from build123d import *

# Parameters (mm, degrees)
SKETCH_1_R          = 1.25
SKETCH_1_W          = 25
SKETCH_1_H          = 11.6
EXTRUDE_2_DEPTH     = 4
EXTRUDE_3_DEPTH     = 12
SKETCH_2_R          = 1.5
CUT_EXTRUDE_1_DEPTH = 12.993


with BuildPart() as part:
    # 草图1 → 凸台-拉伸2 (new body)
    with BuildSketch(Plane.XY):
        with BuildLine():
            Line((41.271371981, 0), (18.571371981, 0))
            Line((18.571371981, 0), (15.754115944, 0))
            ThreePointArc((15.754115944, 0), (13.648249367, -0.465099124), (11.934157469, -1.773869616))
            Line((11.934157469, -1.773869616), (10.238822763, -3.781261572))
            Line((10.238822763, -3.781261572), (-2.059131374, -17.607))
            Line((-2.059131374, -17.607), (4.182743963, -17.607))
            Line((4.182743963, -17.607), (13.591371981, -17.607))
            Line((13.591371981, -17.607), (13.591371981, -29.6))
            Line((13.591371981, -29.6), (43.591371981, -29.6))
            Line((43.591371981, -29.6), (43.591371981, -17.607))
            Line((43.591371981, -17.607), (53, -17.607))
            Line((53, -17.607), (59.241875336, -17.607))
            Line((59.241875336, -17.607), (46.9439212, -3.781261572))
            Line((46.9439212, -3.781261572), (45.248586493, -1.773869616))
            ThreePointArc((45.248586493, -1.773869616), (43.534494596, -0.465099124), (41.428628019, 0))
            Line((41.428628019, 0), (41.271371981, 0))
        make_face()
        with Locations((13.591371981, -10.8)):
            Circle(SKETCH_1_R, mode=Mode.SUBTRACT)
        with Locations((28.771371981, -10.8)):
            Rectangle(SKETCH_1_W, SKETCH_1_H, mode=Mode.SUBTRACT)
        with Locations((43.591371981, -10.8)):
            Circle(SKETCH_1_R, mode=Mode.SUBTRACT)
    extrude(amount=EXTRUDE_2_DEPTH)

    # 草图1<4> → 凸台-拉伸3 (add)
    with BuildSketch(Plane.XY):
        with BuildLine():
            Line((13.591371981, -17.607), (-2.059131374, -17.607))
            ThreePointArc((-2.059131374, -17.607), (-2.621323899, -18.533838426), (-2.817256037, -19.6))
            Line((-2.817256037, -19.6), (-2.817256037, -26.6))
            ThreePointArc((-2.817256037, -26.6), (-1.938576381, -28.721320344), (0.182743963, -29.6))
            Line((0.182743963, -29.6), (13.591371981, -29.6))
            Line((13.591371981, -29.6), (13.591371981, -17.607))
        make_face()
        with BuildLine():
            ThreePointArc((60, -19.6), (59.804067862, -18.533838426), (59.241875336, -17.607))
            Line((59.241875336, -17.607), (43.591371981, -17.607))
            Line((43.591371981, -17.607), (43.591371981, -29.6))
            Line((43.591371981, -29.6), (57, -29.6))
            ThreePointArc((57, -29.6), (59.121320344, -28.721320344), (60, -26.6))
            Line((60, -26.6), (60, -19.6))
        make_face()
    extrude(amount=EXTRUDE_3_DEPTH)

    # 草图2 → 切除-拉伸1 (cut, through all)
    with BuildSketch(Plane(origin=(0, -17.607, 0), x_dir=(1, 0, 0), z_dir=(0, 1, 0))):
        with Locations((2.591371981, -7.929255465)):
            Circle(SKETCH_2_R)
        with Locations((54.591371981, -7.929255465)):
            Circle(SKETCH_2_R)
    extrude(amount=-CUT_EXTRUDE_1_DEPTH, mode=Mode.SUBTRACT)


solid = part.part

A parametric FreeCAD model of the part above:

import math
import FreeCAD as App
import Part
import Sketcher

V = App.Vector
Q = App.Units.Quantity


def add_polygon(sketch, points):
    """Adds a closed chain of lines whose ends are joined by coincident constraints."""
    first, n = sketch.GeometryCount, len(points)
    for a, b in zip(points, points[1:] + points[:1]):
        sketch.addGeometry(Part.LineSegment(App.Vector(*a, 0), App.Vector(*b, 0)), False)
    for i in range(n):
        sketch.addConstraint(Sketcher.Constraint("Coincident", first + i, 2, first + (i + 1) % n, 1))

doc = App.newDocument("Part")
body = doc.addObject("PartDesign::Body", "Body")

# Sketch on XY plane
sketch1 = body.newObject("Sketcher::SketchObject", "Sketch")
sketch1.AttachmentSupport = (doc.getObject("XY_Plane"), [""])
sketch1.MapMode = "FlatFace"
sketch1.addGeometry(Part.ArcOfCircle(Part.Circle(V(15.754116, -5, 0), V(0, 0, 1), 5), math.radians(90), math.radians(139.817372)), False)  # 0
sketch1.addGeometry(Part.LineSegment(V(11.934157, -1.77387, 0), V(10.238823, -3.781262, 0)), False)  # 1
sketch1.addGeometry(Part.LineSegment(V(10.238823, -3.781262, 0), V(-2.059131, -17.607, 0)), False)  # 2
sketch1.addGeometry(Part.LineSegment(V(-2.059131, -17.607, 0), V(13.591372, -17.607, 0)), False)  # 3
sketch1.addGeometry(Part.LineSegment(V(13.591372, -17.607, 0), V(13.591372, -29.6, 0)), False)  # 4
sketch1.addGeometry(Part.LineSegment(V(13.591372, -29.6, 0), V(43.591372, -29.6, 0)), False)  # 5
sketch1.addGeometry(Part.LineSegment(V(43.591372, -29.6, 0), V(43.591372, -17.607, 0)), False)  # 6
sketch1.addGeometry(Part.LineSegment(V(43.591372, -17.607, 0), V(59.241875, -17.607, 0)), False)  # 7
sketch1.addGeometry(Part.LineSegment(V(59.241875, -17.607, 0), V(46.943921, -3.781262, 0)), False)  # 8
sketch1.addGeometry(Part.LineSegment(V(46.943921, -3.781262, 0), V(45.248586, -1.77387, 0)), False)  # 9
sketch1.addGeometry(Part.ArcOfCircle(Part.Circle(V(41.428628, -5, 0), V(0, 0, 1), 5), math.radians(40.182628), math.radians(90)), False)  # 10
sketch1.addGeometry(Part.LineSegment(V(41.428628, 0, 0), V(15.754116, 0, 0)), False)  # 11
sketch1.addGeometry(Part.Circle(V(13.591372, -10.8, 0), V(0, 0, 1), 1.25), False)  # 12
add_polygon(sketch1, [(41.271372, -16.6), (16.271372, -16.6), (16.271372, -5), (41.271372, -5)])  # lines 13-16
sketch1.addGeometry(Part.Circle(V(43.591372, -10.8, 0), V(0, 0, 1), 1.25), False)  # 17
sketch1.addConstraint(Sketcher.Constraint("Tangent", 0, 2, 1, 1))
sketch1.addConstraint(Sketcher.Constraint("Coincident", 1, 2, 2, 1))
sketch1.addConstraint(Sketcher.Constraint("Coincident", 2, 2, 3, 1))
sketch1.addConstraint(Sketcher.Constraint("Coincident", 3, 2, 4, 1))
sketch1.addConstraint(Sketcher.Constraint("Coincident", 4, 2, 5, 1))
sketch1.addConstraint(Sketcher.Constraint("Coincident", 5, 2, 6, 1))
sketch1.addConstraint(Sketcher.Constraint("Coincident", 6, 2, 7, 1))
sketch1.addConstraint(Sketcher.Constraint("Coincident", 7, 2, 8, 1))
sketch1.addConstraint(Sketcher.Constraint("Coincident", 8, 2, 9, 1))
sketch1.addConstraint(Sketcher.Constraint("Tangent", 9, 2, 10, 1))
sketch1.addConstraint(Sketcher.Constraint("Tangent", 10, 2, 11, 1))
sketch1.addConstraint(Sketcher.Constraint("Tangent", 11, 2, 0, 1))
sketch1.addConstraint(Sketcher.Constraint("Horizontal", 3))
sketch1.addConstraint(Sketcher.Constraint("Vertical", 4))
sketch1.addConstraint(Sketcher.Constraint("Horizontal", 5))
sketch1.addConstraint(Sketcher.Constraint("Vertical", 6))
sketch1.addConstraint(Sketcher.Constraint("Horizontal", 7))
sketch1.addConstraint(Sketcher.Constraint("Horizontal", 11))
sketch1.addConstraint(Sketcher.Constraint("Horizontal", 13))
sketch1.addConstraint(Sketcher.Constraint("Vertical", 14))
sketch1.addConstraint(Sketcher.Constraint("Horizontal", 15))
sketch1.addConstraint(Sketcher.Constraint("Vertical", 16))
sketch1.addConstraint(Sketcher.Constraint("Equal", 0, 10))
sketch1.addConstraint(Sketcher.Constraint("Equal", 12, 17))
sketch1.addConstraint(Sketcher.Constraint("PointOnObject", 10, 2, -1))
sketch1.addConstraint(Sketcher.Constraint("Horizontal", 12, 3, 17, 3))
sketch1.addConstraint(Sketcher.Constraint("Horizontal", 3, 2, 6, 2))
sketch1.addConstraint(Sketcher.Constraint("Horizontal", 1, 2, 8, 2))
sketch1.addConstraint(Sketcher.Constraint("Horizontal", 0, 2, 9, 2))
sketch1.addConstraint(Sketcher.Constraint("Horizontal", 10, 3, 14, 2))
sketch1.addConstraint(Sketcher.Constraint("Vertical", 12, 3, 3, 2))
sketch1.addConstraint(Sketcher.Constraint("Vertical", 17, 3, 5, 2))
sketch1.addConstraint(Sketcher.Constraint("Equal", 3, 7))
sketch1.addConstraint(Sketcher.Constraint("Equal", 2, 8))
sketch1.addConstraint(Sketcher.Constraint("Radius", 0, Q("5 mm")))
sketch1.addConstraint(Sketcher.Constraint("Diameter", 12, Q("2.5 mm")))
sketch1.addConstraint(Sketcher.Constraint("DistanceX", 5, 1, 5, 2, Q("30 mm")))
sketch1.addConstraint(Sketcher.Constraint("DistanceX", 13, 2, 13, 1, Q("25 mm")))
sketch1.addConstraint(Sketcher.Constraint("DistanceY", 14, 1, 14, 2, Q("11.6 mm")))
sketch1.addConstraint(Sketcher.Constraint("DistanceY", 4, 2, 13, 2, Q("13 mm")))
sketch1.addConstraint(Sketcher.Constraint("DistanceY", 12, 3, -1, 1, Q("10.8 mm")))
sketch1.addConstraint(Sketcher.Constraint("DistanceY", 4, 2, 4, 1, Q("11.993 mm")))
sketch1.addConstraint(Sketcher.Constraint("DistanceX", 3, 2, 13, 2, Q("2.68 mm")))
sketch1.addConstraint(Sketcher.Constraint("DistanceX", 3, 1, 3, 2, Q("15.650503 mm")))
sketch1.addConstraint(Sketcher.Constraint("DistanceX", 11, 2, 11, 1, Q("25.674512 mm")))
sketch1.addConstraint(Sketcher.Constraint("DistanceX", -1, 1, 10, 3, Q("41.428628 mm")))
sketch1.addConstraint(Sketcher.Constraint("DistanceY", 0, 2, -1, 1, Q("1.77387 mm")))
sketch1.addConstraint(Sketcher.Constraint("DistanceY", 1, 2, -1, 1, Q("3.781262 mm")))
pad1 = body.newObject("PartDesign::Pad", "Pad")
pad1.Profile = sketch1
pad1.Length = 4

# Sketch on XY plane
sketch2 = body.newObject("Sketcher::SketchObject", "Sketch001")
sketch2.AttachmentSupport = (doc.getObject("XY_Plane"), [""])
sketch2.MapMode = "FlatFace"
sketch2.addGeometry(Part.LineSegment(V(13.591372, -17.607, 0), V(-2.059131, -17.607, 0)), False)
sketch2.addGeometry(Part.ArcOfCircle(Part.Circle(V(0.181461, -19.6, 0), V(0, 0, 1), 2.998717), math.radians(138.347), math.radians(180)), False)
sketch2.addGeometry(Part.LineSegment(V(-2.817256, -19.6, 0), V(-2.817256, -26.6, 0)), False)
sketch2.addGeometry(Part.ArcOfCircle(Part.Circle(V(0.182744, -26.6, 0), V(0, 0, 1), 3), math.radians(180), math.radians(270)), False)
sketch2.addGeometry(Part.LineSegment(V(0.182744, -29.6, 0), V(13.591372, -29.6, 0)), False)
sketch2.addGeometry(Part.LineSegment(V(13.591372, -29.6, 0), V(13.591372, -17.607, 0)), False)
sketch2.addGeometry(Part.ArcOfCircle(Part.Circle(V(57.001283, -19.6, 0), V(0, 0, 1), 2.998717), math.radians(0), math.radians(41.653)), False)
sketch2.addGeometry(Part.LineSegment(V(59.241875, -17.607, 0), V(43.591372, -17.607, 0)), False)
sketch2.addGeometry(Part.LineSegment(V(43.591372, -17.607, 0), V(43.591372, -29.6, 0)), False)
sketch2.addGeometry(Part.LineSegment(V(43.591372, -29.6, 0), V(57, -29.6, 0)), False)
sketch2.addGeometry(Part.ArcOfCircle(Part.Circle(V(57, -26.6, 0), V(0, 0, 1), 3), math.radians(-90), math.radians(0)), False)
sketch2.addGeometry(Part.LineSegment(V(60, -26.6, 0), V(60, -19.6, 0)), False)
sketch2.addConstraint(Sketcher.Constraint("Coincident", 0, 2, 1, 1))
sketch2.addConstraint(Sketcher.Constraint("Tangent", 1, 2, 2, 1))
sketch2.addConstraint(Sketcher.Constraint("Tangent", 2, 2, 3, 1))
sketch2.addConstraint(Sketcher.Constraint("Tangent", 3, 2, 4, 1))
sketch2.addConstraint(Sketcher.Constraint("Coincident", 4, 2, 5, 1))
sketch2.addConstraint(Sketcher.Constraint("Coincident", 5, 2, 0, 1))
sketch2.addConstraint(Sketcher.Constraint("Coincident", 6, 2, 7, 1))
sketch2.addConstraint(Sketcher.Constraint("Coincident", 7, 2, 8, 1))
sketch2.addConstraint(Sketcher.Constraint("Coincident", 8, 2, 9, 1))
sketch2.addConstraint(Sketcher.Constraint("Tangent", 9, 2, 10, 1))
sketch2.addConstraint(Sketcher.Constraint("Tangent", 10, 2, 11, 1))
sketch2.addConstraint(Sketcher.Constraint("Tangent", 11, 2, 6, 1))
sketch2.addConstraint(Sketcher.Constraint("Horizontal", 0))
sketch2.addConstraint(Sketcher.Constraint("Vertical", 2))
sketch2.addConstraint(Sketcher.Constraint("Horizontal", 4))
sketch2.addConstraint(Sketcher.Constraint("Vertical", 5))
sketch2.addConstraint(Sketcher.Constraint("Horizontal", 7))
sketch2.addConstraint(Sketcher.Constraint("Vertical", 8))
sketch2.addConstraint(Sketcher.Constraint("Horizontal", 9))
sketch2.addConstraint(Sketcher.Constraint("Vertical", 11))
sketch2.addConstraint(Sketcher.Constraint("Equal", 1, 6))
sketch2.addConstraint(Sketcher.Constraint("Equal", 3, 10))
sketch2.addConstraint(Sketcher.Constraint("Horizontal", 1, 3, 6, 3))
sketch2.addConstraint(Sketcher.Constraint("Horizontal", 3, 3, 10, 3))
sketch2.addConstraint(Sketcher.Constraint("Horizontal", 5, 2, 6, 2))
sketch2.addConstraint(Sketcher.Constraint("Equal", 0, 7))
sketch2.addConstraint(Sketcher.Constraint("Radius", 3, Q("3 mm")))
sketch2.addConstraint(Sketcher.Constraint("DistanceY", 2, 2, 2, 1, Q("7 mm")))
sketch2.addConstraint(Sketcher.Constraint("DistanceX", -1, 1, 10, 3, Q("57 mm")))
sketch2.addConstraint(Sketcher.Constraint("DistanceX", 5, 2, 7, 2, Q("30 mm")))
sketch2.addConstraint(Sketcher.Constraint("DistanceY", 1, 3, -1, 1, Q("19.6 mm")))
sketch2.addConstraint(Sketcher.Constraint("DistanceY", 5, 1, 5, 2, Q("11.993 mm")))
sketch2.addConstraint(Sketcher.Constraint("Radius", 1, Q("2.998717 mm")))
sketch2.addConstraint(Sketcher.Constraint("DistanceX", 4, 1, 4, 2, Q("13.408628 mm")))
pad2 = body.newObject("PartDesign::Pad", "Pad001")
pad2.Profile = sketch2
pad2.Length = 12

# Sketch on XZ plane
sketch3 = body.newObject("Sketcher::SketchObject", "Sketch002")
sketch3.AttachmentSupport = (doc.getObject("XZ_Plane"), [""])
sketch3.MapMode = "FlatFace"
sketch3.AttachmentOffset = App.Placement(V(0, 0, 17.607), App.Rotation())
sketch3.addGeometry(Part.Circle(V(2.591372, 7.929255, 0), V(0, 0, 1), 1.5), False)
sketch3.addGeometry(Part.Circle(V(54.591372, 7.929255, 0), V(0, 0, 1), 1.5), False)
sketch3.addConstraint(Sketcher.Constraint("Equal", 0, 1))
sketch3.addConstraint(Sketcher.Constraint("Horizontal", 0, 3, 1, 3))
sketch3.addConstraint(Sketcher.Constraint("Diameter", 0, Q("3 mm")))
sketch3.addConstraint(Sketcher.Constraint("DistanceX", 0, 3, 1, 3, Q("52 mm")))
sketch3.addConstraint(Sketcher.Constraint("DistanceX", -1, 1, 0, 3, Q("2.591372 mm")))
sketch3.addConstraint(Sketcher.Constraint("DistanceY", -1, 1, 0, 3, Q("7.929255 mm")))
pocket1 = body.newObject("PartDesign::Pocket", "Pocket")
pocket1.Profile = sketch3
pocket1.Type = "ThroughAll"
pocket1.Reversed = True

doc.recompute()
